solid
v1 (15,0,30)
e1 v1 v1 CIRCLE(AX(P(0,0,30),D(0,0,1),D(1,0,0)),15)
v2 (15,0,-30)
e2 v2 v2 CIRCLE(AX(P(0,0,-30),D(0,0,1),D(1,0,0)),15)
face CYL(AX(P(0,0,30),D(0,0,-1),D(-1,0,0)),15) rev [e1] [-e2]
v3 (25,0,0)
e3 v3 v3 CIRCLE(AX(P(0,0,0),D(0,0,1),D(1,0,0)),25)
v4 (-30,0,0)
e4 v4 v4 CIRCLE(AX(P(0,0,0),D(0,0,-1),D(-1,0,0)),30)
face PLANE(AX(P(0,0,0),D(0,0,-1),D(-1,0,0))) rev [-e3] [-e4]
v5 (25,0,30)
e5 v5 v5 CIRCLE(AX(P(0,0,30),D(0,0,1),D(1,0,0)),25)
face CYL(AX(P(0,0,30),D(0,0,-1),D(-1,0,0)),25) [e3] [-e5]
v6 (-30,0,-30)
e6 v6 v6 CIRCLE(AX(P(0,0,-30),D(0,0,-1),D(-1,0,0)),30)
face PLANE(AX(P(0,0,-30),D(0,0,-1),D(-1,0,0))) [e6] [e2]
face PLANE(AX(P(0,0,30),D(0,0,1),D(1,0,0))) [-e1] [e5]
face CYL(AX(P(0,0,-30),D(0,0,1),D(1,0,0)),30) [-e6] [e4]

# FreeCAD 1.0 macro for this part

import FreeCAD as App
import Part
import Sketcher

V = App.Vector

doc = App.newDocument("Part")
body = doc.addObject("PartDesign::Body", "Body")

sketch1 = body.newObject("Sketcher::SketchObject", "Sketch")
sketch1.AttachmentSupport = (doc.getObject("XY_Plane"), [""])
sketch1.MapMode = "FlatFace"
sketch1.addGeometry([
    Part.Circle(V(0, 0, 0), V(0, 0, 1), 25),
    Part.Circle(V(0, 0, 0), V(0, 0, 1), 15),
], False)
sketch1.addConstraint([
    Sketcher.Constraint("Coincident", 0, 3, -1, 1),
    Sketcher.Constraint("Coincident", 1, 3, -1, 1),
    Sketcher.Constraint("Diameter", 0, 50.0),
    Sketcher.Constraint("Diameter", 1, 30.0),
])
pad1 = body.newObject("PartDesign::Pad", "Pad")
pad1.Profile = sketch1
pad1.Length = 30

sketch2 = body.newObject("Sketcher::SketchObject", "Sketch001")
sketch2.AttachmentSupport = (doc.getObject("XY_Plane"), [""])
sketch2.MapMode = "FlatFace"
sketch2.addGeometry(Part.Circle(V(0, 0, 0), V(0, 0, 1), 30), False)
sketch2.addConstraint([
    Sketcher.Constraint("Coincident", 0, 3, -1, 1),
    Sketcher.Constraint("Diameter", 0, 60.0),
])
pad2 = body.newObject("PartDesign::Pad", "Pad001")
pad2.Profile = sketch2
pad2.Length = 30
pad2.Reversed = True

sketch3 = body.newObject("Sketcher::SketchObject", "Sketch002")
sketch3.AttachmentSupport = (doc.getObject("XY_Plane"), [""])
sketch3.MapMode = "FlatFace"
sketch3.AttachmentOffset = App.Placement(V(0, 0, -30), App.Rotation())
sketch3.addGeometry(Part.Circle(V(0, 0, 0), V(0, 0, 1), 15), False)
sketch3.addConstraint([
    Sketcher.Constraint("Coincident", 0, 3, -1, 1),
    Sketcher.Constraint("Diameter", 0, 30.0),
])
pocket1 = body.newObject("PartDesign::Pocket", "Pocket")
pocket1.Profile = sketch3
pocket1.Length = 30
pocket1.Reversed = True

doc.recompute()
